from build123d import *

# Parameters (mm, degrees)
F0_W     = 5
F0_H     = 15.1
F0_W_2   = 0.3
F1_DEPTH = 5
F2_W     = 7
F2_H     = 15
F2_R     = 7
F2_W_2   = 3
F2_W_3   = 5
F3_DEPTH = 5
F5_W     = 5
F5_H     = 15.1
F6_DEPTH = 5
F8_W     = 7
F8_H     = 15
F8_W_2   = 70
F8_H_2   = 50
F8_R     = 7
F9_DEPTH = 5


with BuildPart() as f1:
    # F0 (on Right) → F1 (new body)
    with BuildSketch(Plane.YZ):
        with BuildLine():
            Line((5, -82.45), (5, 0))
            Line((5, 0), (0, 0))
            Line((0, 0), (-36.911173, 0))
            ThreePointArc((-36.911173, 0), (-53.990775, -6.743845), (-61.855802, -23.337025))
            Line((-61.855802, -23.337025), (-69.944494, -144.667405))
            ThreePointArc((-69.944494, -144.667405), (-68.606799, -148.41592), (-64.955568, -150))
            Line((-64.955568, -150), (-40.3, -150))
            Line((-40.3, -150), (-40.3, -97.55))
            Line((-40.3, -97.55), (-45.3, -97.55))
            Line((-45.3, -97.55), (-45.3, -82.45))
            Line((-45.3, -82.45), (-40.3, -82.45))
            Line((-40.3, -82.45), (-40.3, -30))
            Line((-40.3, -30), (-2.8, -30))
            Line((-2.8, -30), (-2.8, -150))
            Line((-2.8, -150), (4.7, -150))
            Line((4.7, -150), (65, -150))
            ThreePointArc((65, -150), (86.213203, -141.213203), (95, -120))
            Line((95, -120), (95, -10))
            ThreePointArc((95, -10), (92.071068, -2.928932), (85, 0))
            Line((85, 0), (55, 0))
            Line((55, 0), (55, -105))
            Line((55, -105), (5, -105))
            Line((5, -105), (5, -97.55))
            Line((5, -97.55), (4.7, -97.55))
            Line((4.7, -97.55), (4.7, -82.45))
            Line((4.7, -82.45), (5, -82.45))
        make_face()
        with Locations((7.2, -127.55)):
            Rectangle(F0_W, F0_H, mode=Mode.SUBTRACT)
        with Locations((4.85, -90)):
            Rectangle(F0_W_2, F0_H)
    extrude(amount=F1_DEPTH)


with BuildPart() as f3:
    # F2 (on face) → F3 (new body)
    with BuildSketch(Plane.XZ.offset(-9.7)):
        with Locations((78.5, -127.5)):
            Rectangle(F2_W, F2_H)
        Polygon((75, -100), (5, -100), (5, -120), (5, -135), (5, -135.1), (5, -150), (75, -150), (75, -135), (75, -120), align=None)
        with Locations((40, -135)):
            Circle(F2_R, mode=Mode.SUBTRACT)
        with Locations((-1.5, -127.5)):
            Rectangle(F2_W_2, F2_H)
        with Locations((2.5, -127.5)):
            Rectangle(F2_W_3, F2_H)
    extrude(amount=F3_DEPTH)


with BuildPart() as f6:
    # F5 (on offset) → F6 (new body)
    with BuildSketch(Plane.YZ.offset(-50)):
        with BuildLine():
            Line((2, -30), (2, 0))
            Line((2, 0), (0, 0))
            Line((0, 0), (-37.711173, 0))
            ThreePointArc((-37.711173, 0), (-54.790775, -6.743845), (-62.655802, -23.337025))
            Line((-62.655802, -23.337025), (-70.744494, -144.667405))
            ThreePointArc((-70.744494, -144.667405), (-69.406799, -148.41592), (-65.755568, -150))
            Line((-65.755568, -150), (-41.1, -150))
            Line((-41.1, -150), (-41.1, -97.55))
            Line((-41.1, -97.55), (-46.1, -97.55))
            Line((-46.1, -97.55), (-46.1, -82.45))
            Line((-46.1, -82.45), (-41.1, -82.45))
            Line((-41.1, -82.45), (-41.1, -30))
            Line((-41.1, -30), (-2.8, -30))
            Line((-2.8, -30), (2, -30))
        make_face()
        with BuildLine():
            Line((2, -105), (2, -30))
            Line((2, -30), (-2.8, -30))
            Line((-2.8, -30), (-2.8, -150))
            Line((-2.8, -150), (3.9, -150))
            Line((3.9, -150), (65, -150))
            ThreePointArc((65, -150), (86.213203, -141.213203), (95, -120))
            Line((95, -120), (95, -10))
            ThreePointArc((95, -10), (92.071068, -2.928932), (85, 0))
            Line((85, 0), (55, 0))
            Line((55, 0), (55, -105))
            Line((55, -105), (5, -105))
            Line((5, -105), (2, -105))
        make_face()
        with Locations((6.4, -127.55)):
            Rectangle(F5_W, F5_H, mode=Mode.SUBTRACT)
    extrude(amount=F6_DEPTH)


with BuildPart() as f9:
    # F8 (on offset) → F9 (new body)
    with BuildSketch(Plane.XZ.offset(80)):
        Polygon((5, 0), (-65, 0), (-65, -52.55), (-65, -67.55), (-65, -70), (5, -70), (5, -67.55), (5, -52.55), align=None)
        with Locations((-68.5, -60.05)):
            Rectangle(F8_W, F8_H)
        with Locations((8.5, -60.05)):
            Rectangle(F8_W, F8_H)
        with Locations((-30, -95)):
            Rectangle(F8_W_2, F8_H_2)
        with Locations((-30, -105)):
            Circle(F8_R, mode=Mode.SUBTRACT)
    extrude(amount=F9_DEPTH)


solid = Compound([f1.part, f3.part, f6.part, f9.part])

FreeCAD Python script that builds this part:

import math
import FreeCAD as App
import Part
import Sketcher
Q = App.Units.Quantity


def add_polygon(sketch, points):
    """Adds a closed chain of lines whose ends are joined by coincident constraints."""
    first, n = sketch.GeometryCount, len(points)
    for a, b in zip(points, points[1:] + points[:1]):
        sketch.addGeometry(Part.LineSegment(App.Vector(*a, 0), App.Vector(*b, 0)), False)
    for i in range(n):
        sketch.addConstraint(Sketcher.Constraint("Coincident", first + i, 2, first + (i + 1) % n, 1))

doc = App.newDocument("Part")
body = doc.addObject("PartDesign::Body", "Body")

# Sketch on YZ plane
sketch1 = doc.addObject("Sketcher::SketchObject", "Sketch")
body.addObject(sketch1)
sketch1.AttachmentSupport = (doc.YZ_Plane, [""])
sketch1.MapMode = "FlatFace"
sketch1.addGeometry(Part.LineSegment(App.Vector(5, 0, 0), App.Vector(-36.911173, 0, 0)), False)  # 0
sketch1.addGeometry(Part.ArcOfCircle(Part.Circle(App.Vector(-36.911173, -25, 0), App.Vector(0, 0, 1), 25), math.radians(90), math.radians(176.185926)), False)  # 1
sketch1.addGeometry(Part.LineSegment(App.Vector(-61.855802, -23.337025, 0), App.Vector(-69.944494, -144.667405, 0)), False)  # 2
sketch1.addGeometry(Part.ArcOfCircle(Part.Circle(App.Vector(-64.955567, -144.999999, 0), App.Vector(0, 0, 1), 5.000001), math.radians(176.185937), math.radians(269.999991)), False)  # 3
sketch1.addGeometry(Part.LineSegment(App.Vector(-64.955568, -150, 0), App.Vector(-40.3, -150, 0)), False)  # 4
sketch1.addGeometry(Part.LineSegment(App.Vector(-40.3, -150, 0), App.Vector(-40.3, -97.55, 0)), False)  # 5
sketch1.addGeometry(Part.LineSegment(App.Vector(-40.3, -97.55, 0), App.Vector(-45.3, -97.55, 0)), False)  # 6
sketch1.addGeometry(Part.LineSegment(App.Vector(-45.3, -97.55, 0), App.Vector(-45.3, -82.45, 0)), False)  # 7
sketch1.addGeometry(Part.LineSegment(App.Vector(-45.3, -82.45, 0), App.Vector(-40.3, -82.45, 0)), False)  # 8
sketch1.addGeometry(Part.LineSegment(App.Vector(-40.3, -82.45, 0), App.Vector(-40.3, -30, 0)), False)  # 9
sketch1.addGeometry(Part.LineSegment(App.Vector(-40.3, -30, 0), App.Vector(-2.8, -30, 0)), False)  # 10
sketch1.addGeometry(Part.LineSegment(App.Vector(-2.8, -30, 0), App.Vector(-2.8, -150, 0)), False)  # 11
sketch1.addGeometry(Part.LineSegment(App.Vector(-2.8, -150, 0), App.Vector(65, -150, 0)), False)  # 12
sketch1.addGeometry(Part.ArcOfCircle(Part.Circle(App.Vector(64.999999, -119.999999, 0), App.Vector(0, 0, 1), 30.000001), math.radians(-89.999997), math.radians(-0.000003)), False)  # 13
sketch1.addGeometry(Part.LineSegment(App.Vector(95, -120, 0), App.Vector(95, -10, 0)), False)  # 14
sketch1.addGeometry(Part.ArcOfCircle(Part.Circle(App.Vector(85.000001, -9.999999, 0), App.Vector(0, 0, 1), 9.999999), math.radians(-0.000004), math.radians(90.000004)), False)  # 15
sketch1.addGeometry(Part.LineSegment(App.Vector(85, 0, 0), App.Vector(55, 0, 0)), False)  # 16
sketch1.addGeometry(Part.LineSegment(App.Vector(55, 0, 0), App.Vector(55, -105, 0)), False)  # 17
sketch1.addGeometry(Part.LineSegment(App.Vector(55, -105, 0), App.Vector(5, -105, 0)), False)  # 18
sketch1.addGeometry(Part.LineSegment(App.Vector(5, -105, 0), App.Vector(5, 0, 0)), False)  # 19
add_polygon(sketch1, [(9.7, -135.1), (4.7, -135.1), (4.7, -120), (9.7, -120)])  # lines 20-23
sketch1.addConstraint(Sketcher.Constraint("Tangent", 0, 2, 1, 1))
sketch1.addConstraint(Sketcher.Constraint("Tangent", 1, 2, 2, 1))
sketch1.addConstraint(Sketcher.Constraint("Tangent", 2, 2, 3, 1))
sketch1.addConstraint(Sketcher.Constraint("Tangent", 3, 2, 4, 1))
sketch1.addConstraint(Sketcher.Constraint("Coincident", 4, 2, 5, 1))
sketch1.addConstraint(Sketcher.Constraint("Coincident", 5, 2, 6, 1))
sketch1.addConstraint(Sketcher.Constraint("Coincident", 6, 2, 7, 1))
sketch1.addConstraint(Sketcher.Constraint("Coincident", 7, 2, 8, 1))
sketch1.addConstraint(Sketcher.Constraint("Coincident", 8, 2, 9, 1))
sketch1.addConstraint(Sketcher.Constraint("Coincident", 9, 2, 10, 1))
sketch1.addConstraint(Sketcher.Constraint("Coincident", 10, 2, 11, 1))
sketch1.addConstraint(Sketcher.Constraint("Coincident", 11, 2, 12, 1))
sketch1.addConstraint(Sketcher.Constraint("Tangent", 12, 2, 13, 1))
sketch1.addConstraint(Sketcher.Constraint("Tangent", 13, 2, 14, 1))
sketch1.addConstraint(Sketcher.Constraint("Tangent", 14, 2, 15, 1))
sketch1.addConstraint(Sketcher.Constraint("Tangent", 15, 2, 16, 1))
sketch1.addConstraint(Sketcher.Constraint("Coincident", 16, 2, 17, 1))
sketch1.addConstraint(Sketcher.Constraint("Coincident", 17, 2, 18, 1))
sketch1.addConstraint(Sketcher.Constraint("Coincident", 18, 2, 19, 1))
sketch1.addConstraint(Sketcher.Constraint("Coincident", 19, 2, 0, 1))
sketch1.addConstraint(Sketcher.Constraint("Horizontal", 0))
sketch1.addConstraint(Sketcher.Constraint("Horizontal", 4))
sketch1.addConstraint(Sketcher.Constraint("Vertical", 5))
sketch1.addConstraint(Sketcher.Constraint("Horizontal", 6))
sketch1.addConstraint(Sketcher.Constraint("Vertical", 7))
sketch1.addConstraint(Sketcher.Constraint("Horizontal", 8))
sketch1.addConstraint(Sketcher.Constraint("Vertical", 9))
sketch1.addConstraint(Sketcher.Constraint("Horizontal", 10))
sketch1.addConstraint(Sketcher.Constraint("Vertical", 11))
sketch1.addConstraint(Sketcher.Constraint("Horizontal", 12))
sketch1.addConstraint(Sketcher.Constraint("Vertical", 14))
sketch1.addConstraint(Sketcher.Constraint("Horizontal", 16))
sketch1.addConstraint(Sketcher.Constraint("Vertical", 17))
sketch1.addConstraint(Sketcher.Constraint("Horizontal", 18))
sketch1.addConstraint(Sketcher.Constraint("Vertical", 19))
sketch1.addConstraint(Sketcher.Constraint("Horizontal", 20))
sketch1.addConstraint(Sketcher.Constraint("Vertical", 21))
sketch1.addConstraint(Sketcher.Constraint("Horizontal", 22))
sketch1.addConstraint(Sketcher.Constraint("Vertical", 23))
sketch1.addConstraint(Sketcher.Constraint("PointOnObject", 0, 2, -1))
sketch1.addConstraint(Sketcher.Constraint("PointOnObject", 15, 2, -1))
sketch1.addConstraint(Sketcher.Constraint("Horizontal", 4, 2, 11, 2))
sketch1.addConstraint(Sketcher.Constraint("Horizontal", 13, 2, 21, 2))
sketch1.addConstraint(Sketcher.Constraint("Vertical", 5, 2, 8, 2))
sketch1.addConstraint(Sketcher.Constraint("Equal", 8, 20))
sketch1.addConstraint(Sketcher.Constraint("Equal", 5, 9))
sketch1.addConstraint(Sketcher.Constraint("Equal", 7, 21))
sketch1.addConstraint(Sketcher.Constraint("Radius", 1, Q("25 mm")))
sketch1.addConstraint(Sketcher.Constraint("Radius", 3, Q("5.000001 mm")))
sketch1.addConstraint(Sketcher.Constraint("Radius", 13, Q("30.000001 mm")))
sketch1.addConstraint(Sketcher.Constraint("Radius", 15, Q("9.999999 mm")))
sketch1.addConstraint(Sketcher.Constraint("DistanceX", 6, 2, 6, 1, Q("5 mm")))
sketch1.addConstraint(Sketcher.Constraint("DistanceX", 16, 2, 16, 1, Q("30 mm")))
sketch1.addConstraint(Sketcher.Constraint("DistanceX", 18, 2, 18, 1, Q("50 mm")))
sketch1.addConstraint(Sketcher.Constraint("DistanceY", 11, 2, 11, 1, Q("120 mm")))
sketch1.addConstraint(Sketcher.Constraint("DistanceY", 14, 1, 14, 2, Q("110 mm")))
sketch1.addConstraint(Sketcher.Constraint("DistanceY", 17, 2, 17, 1, Q("105 mm")))
sketch1.addConstraint(Sketcher.Constraint("DistanceX", 10, 1, 10, 2, Q("37.5 mm")))
sketch1.addConstraint(Sketcher.Constraint("DistanceX", 12, 1, 12, 2, Q("67.8 mm")))
sketch1.addConstraint(Sketcher.Constraint("DistanceY", 7, 1, 7, 2, Q("15.1 mm")))
sketch1.addConstraint(Sketcher.Constraint("DistanceX", -1, 1, 13, 3, Q("64.999999 mm")))
sketch1.addConstraint(Sketcher.Constraint("DistanceX", 4, 2, 20, 2, Q("45 mm")))
sketch1.addConstraint(Sketcher.Constraint("DistanceX", 4, 1, 4, 2, Q("24.655568 mm")))
sketch1.addConstraint(Sketcher.Constraint("DistanceX", 1, 2, 13, 3, Q("126.855801 mm")))
pad1 = doc.addObject("PartDesign::Pad", "Pad")
body.addObject(pad1)
pad1.Profile = sketch1
pad1.Length = 5
body2 = doc.addObject("PartDesign::Body", "Body001")

# Sketch on XZ plane
sketch2 = doc.addObject("Sketcher::SketchObject", "Sketch001")
body2.addObject(sketch2)
sketch2.AttachmentSupport = (doc.getObject("XZ_Plane001"), [""])
sketch2.MapMode = "FlatFace"
sketch2.AttachmentOffset = App.Placement(App.Vector(0, 0, -9.7), App.Rotation())
add_polygon(sketch2, [(75, -135), (82, -135), (82, -120), (75, -120), (75, -100), (5, -100), (5, -120), (-3, -120), (-3, -135), (5, -135), (5, -150), (75, -150)])  # lines 0-11
sketch2.addGeometry(Part.Circle(App.Vector(40, -135, 0), App.Vector(0, 0, 1), 7), False)  # 12
sketch2.addConstraint(Sketcher.Constraint("Horizontal", 0))
sketch2.addConstraint(Sketcher.Constraint("Vertical", 1))
sketch2.addConstraint(Sketcher.Constraint("Horizontal", 2))
sketch2.addConstraint(Sketcher.Constraint("Vertical", 3))
sketch2.addConstraint(Sketcher.Constraint("Horizontal", 4))
sketch2.addConstraint(Sketcher.Constraint("Vertical", 5))
sketch2.addConstraint(Sketcher.Constraint("Horizontal", 6))
sketch2.addConstraint(Sketcher.Constraint("Vertical", 7))
sketch2.addConstraint(Sketcher.Constraint("Horizontal", 8))
sketch2.addConstraint(Sketcher.Constraint("Vertical", 9))
sketch2.addConstraint(Sketcher.Constraint("Horizontal", 10))
sketch2.addConstraint(Sketcher.Constraint("Vertical", 11))
sketch2.addConstraint(Sketcher.Constraint("Horizontal", 12, 3, 0, 2))
sketch2.addConstraint(Sketcher.Constraint("Horizontal", 2, 2, 5, 2))
sketch2.addConstraint(Sketcher.Constraint("Horizontal", 0, 2, 7, 2))
sketch2.addConstraint(Sketcher.Constraint("Vertical", 5, 2, 8, 2))
sketch2.addConstraint(Sketcher.Constraint("Vertical", 3, 2, 10, 2))
sketch2.addConstraint(Sketcher.Constraint("Equal", 7, 9))
sketch2.addConstraint(Sketcher.Constraint("Diameter", 12, Q("14 mm")))
sketch2.addConstraint(Sketcher.Constraint("DistanceX", 0, 1, 0, 2, Q("7 mm")))
sketch2.addConstraint(Sketcher.Constraint("DistanceX", 4, 2, 4, 1, Q("70 mm")))
sketch2.addConstraint(Sketcher.Constraint("DistanceX", 6, 2, 6, 1, Q("8 mm")))
sketch2.addConstraint(Sketcher.Constraint("DistanceY", 1, 1, 1, 2, Q("15 mm")))
sketch2.addConstraint(Sketcher.Constraint("DistanceY", 3, 1, 3, 2, Q("20 mm")))
sketch2.addConstraint(Sketcher.Constraint("DistanceX", -1, 1, 12, 3, Q("40 mm")))
sketch2.addConstraint(Sketcher.Constraint("DistanceY", 12, 3, -1, 1, Q("135 mm")))
sketch2.addConstraint(Sketcher.Constraint("DistanceX", -1, 1, 0, 2, Q("82 mm")))
pad2 = doc.addObject("PartDesign::Pad", "Pad001")
body2.addObject(pad2)
pad2.Profile = sketch2
pad2.Length = 5
body3 = doc.addObject("PartDesign::Body", "Body002")

# Sketch on YZ plane
sketch3 = doc.addObject("Sketcher::SketchObject", "Sketch002")
body3.addObject(sketch3)
sketch3.AttachmentSupport = (doc.getObject("YZ_Plane002"), [""])
sketch3.MapMode = "FlatFace"
sketch3.AttachmentOffset = App.Placement(App.Vector(0, 0, -50), App.Rotation())
sketch3.addGeometry(Part.LineSegment(App.Vector(2, 0, 0), App.Vector(-37.711173, 0, 0)), False)  # 0
sketch3.addGeometry(Part.ArcOfCircle(Part.Circle(App.Vector(-37.711173, -25, 0), App.Vector(0, 0, 1), 25), math.radians(90), math.radians(176.185926)), False)  # 1
sketch3.addGeometry(Part.LineSegment(App.Vector(-62.655802, -23.337025, 0), App.Vector(-70.744494, -144.667405, 0)), False)  # 2
sketch3.addGeometry(Part.ArcOfCircle(Part.Circle(App.Vector(-65.755567, -144.999999, 0), App.Vector(0, 0, 1), 5.000001), math.radians(176.185937), math.radians(269.999991)), False)  # 3
sketch3.addGeometry(Part.LineSegment(App.Vector(-65.755568, -150, 0), App.Vector(-41.1, -150, 0)), False)  # 4
sketch3.addGeometry(Part.LineSegment(App.Vector(-41.1, -150, 0), App.Vector(-41.1, -97.55, 0)), False)  # 5
sketch3.addGeometry(Part.LineSegment(App.Vector(-41.1, -97.55, 0), App.Vector(-46.1, -97.55, 0)), False)  # 6
sketch3.addGeometry(Part.LineSegment(App.Vector(-46.1, -97.55, 0), App.Vector(-46.1, -82.45, 0)), False)  # 7
sketch3.addGeometry(Part.LineSegment(App.Vector(-46.1, -82.45, 0), App.Vector(-41.1, -82.45, 0)), False)  # 8
sketch3.addGeometry(Part.LineSegment(App.Vector(-41.1, -82.45, 0), App.Vector(-41.1, -30, 0)), False)  # 9
sketch3.addGeometry(Part.LineSegment(App.Vector(-41.1, -30, 0), App.Vector(-2.8, -30, 0)), False)  # 10
sketch3.addGeometry(Part.LineSegment(App.Vector(-2.8, -30, 0), App.Vector(-2.8, -150, 0)), False)  # 11
sketch3.addGeometry(Part.LineSegment(App.Vector(-2.8, -150, 0), App.Vector(65, -150, 0)), False)  # 12
sketch3.addGeometry(Part.ArcOfCircle(Part.Circle(App.Vector(64.999999, -119.999999, 0), App.Vector(0, 0, 1), 30.000001), math.radians(-89.999997), math.radians(-0.000003)), False)  # 13
sketch3.addGeometry(Part.LineSegment(App.Vector(95, -120, 0), App.Vector(95, -10, 0)), False)  # 14
sketch3.addGeometry(Part.ArcOfCircle(Part.Circle(App.Vector(85.000001, -9.999999, 0), App.Vector(0, 0, 1), 9.999999), math.radians(-0.000004), math.radians(90.000004)), False)  # 15
sketch3.addGeometry(Part.LineSegment(App.Vector(85, 0, 0), App.Vector(55, 0, 0)), False)  # 16
sketch3.addGeometry(Part.LineSegment(App.Vector(55, 0, 0), App.Vector(55, -105, 0)), False)  # 17
sketch3.addGeometry(Part.LineSegment(App.Vector(55, -105, 0), App.Vector(2, -105, 0)), False)  # 18
sketch3.addGeometry(Part.LineSegment(App.Vector(2, -105, 0), App.Vector(2, 0, 0)), False)  # 19
add_polygon(sketch3, [(8.9, -135.1), (3.9, -135.1), (3.9, -120), (8.9, -120)])  # lines 20-23
sketch3.addConstraint(Sketcher.Constraint("Coincident", 0, 2, 1, 1))
sketch3.addConstraint(Sketcher.Constraint("Coincident", 1, 2, 2, 1))
sketch3.addConstraint(Sketcher.Constraint("Coincident", 2, 2, 3, 1))
sketch3.addConstraint(Sketcher.Constraint("Coincident", 3, 2, 4, 1))
sketch3.addConstraint(Sketcher.Constraint("Coincident", 4, 2, 5, 1))
sketch3.addConstraint(Sketcher.Constraint("Coincident", 5, 2, 6, 1))
sketch3.addConstraint(Sketcher.Constraint("Coincident", 6, 2, 7, 1))
sketch3.addConstraint(Sketcher.Constraint("Coincident", 7, 2, 8, 1))
sketch3.addConstraint(Sketcher.Constraint("Coincident", 8, 2, 9, 1))
sketch3.addConstraint(Sketcher.Constraint("Coincident", 9, 2, 10, 1))
sketch3.addConstraint(Sketcher.Constraint("Coincident", 10, 2, 11, 1))
sketch3.addConstraint(Sketcher.Constraint("Coincident", 11, 2, 12, 1))
sketch3.addConstraint(Sketcher.Constraint("Coincident", 12, 2, 13, 1))
sketch3.addConstraint(Sketcher.Constraint("Coincident", 13, 2, 14, 1))
sketch3.addConstraint(Sketcher.Constraint("Coincident", 14, 2, 15, 1))
sketch3.addConstraint(Sketcher.Constraint("Coincident", 15, 2, 16, 1))
sketch3.addConstraint(Sketcher.Constraint("Coincident", 16, 2, 17, 1))
sketch3.addConstraint(Sketcher.Constraint("Coincident", 17, 2, 18, 1))
sketch3.addConstraint(Sketcher.Constraint("Coincident", 18, 2, 19, 1))
sketch3.addConstraint(Sketcher.Constraint("Coincident", 19, 2, 0, 1))
sketch3.addConstraint(Sketcher.Constraint("Horizontal", 0))
sketch3.addConstraint(Sketcher.Constraint("Horizontal", 4))
sketch3.addConstraint(Sketcher.Constraint("Vertical", 5))
sketch3.addConstraint(Sketcher.Constraint("Horizontal", 6))
sketch3.addConstraint(Sketcher.Constraint("Vertical", 7))
sketch3.addConstraint(Sketcher.Constraint("Horizontal", 8))
sketch3.addConstraint(Sketcher.Constraint("Vertical", 9))
sketch3.addConstraint(Sketcher.Constraint("Horizontal", 10))
sketch3.addConstraint(Sketcher.Constraint("Vertical", 11))
sketch3.addConstraint(Sketcher.Constraint("Horizontal", 12))
sketch3.addConstraint(Sketcher.Constraint("Vertical", 14))
sketch3.addConstraint(Sketcher.Constraint("Horizontal", 16))
sketch3.addConstraint(Sketcher.Constraint("Vertical", 17))
sketch3.addConstraint(Sketcher.Constraint("Horizontal", 18))
sketch3.addConstraint(Sketcher.Constraint("Vertical", 19))
sketch3.addConstraint(Sketcher.Constraint("Horizontal", 20))
sketch3.addConstraint(Sketcher.Constraint("Vertical", 21))
sketch3.addConstraint(Sketcher.Constraint("Horizontal", 22))
sketch3.addConstraint(Sketcher.Constraint("Vertical", 23))
sketch3.addConstraint(Sketcher.Constraint("PointOnObject", 0, 2, -1))
sketch3.addConstraint(Sketcher.Constraint("PointOnObject", 15, 2, -1))
sketch3.addConstraint(Sketcher.Constraint("Radius", 1, Q("25 mm")))
sketch3.addConstraint(Sketcher.Constraint("Radius", 3, Q("5.000001 mm")))
sketch3.addConstraint(Sketcher.Constraint("Radius", 13, Q("30.000001 mm")))
sketch3.addConstraint(Sketcher.Constraint("Radius", 15, Q("9.999999 mm")))
sketch3.addConstraint(Sketcher.Constraint("DistanceX", 6, 2, 6, 1, Q("5 mm")))
sketch3.addConstraint(Sketcher.Constraint("DistanceX", 8, 1, 8, 2, Q("5 mm")))
sketch3.addConstraint(Sketcher.Constraint("DistanceX", 16, 2, 16, 1, Q("30 mm")))
sketch3.addConstraint(Sketcher.Constraint("DistanceX", 18, 2, 18, 1, Q("53 mm")))
sketch3.addConstraint(Sketcher.Constraint("DistanceX", 20, 2, 20, 1, Q("5 mm")))
sketch3.addConstraint(Sketcher.Constraint("DistanceY", 11, 2, 11, 1, Q("120 mm")))
sketch3.addConstraint(Sketcher.Constraint("DistanceY", 14, 1, 14, 2, Q("110 mm")))
sketch3.addConstraint(Sketcher.Constraint("DistanceY", 17, 2, 17, 1, Q("105 mm")))
sketch3.addConstraint(Sketcher.Constraint("DistanceX", 10, 1, 10, 2, Q("38.3 mm")))
sketch3.addConstraint(Sketcher.Constraint("DistanceX", 12, 1, 12, 2, Q("67.8 mm")))
sketch3.addConstraint(Sketcher.Constraint("DistanceY", 7, 1, 7, 2, Q("15.1 mm")))
sketch3.addConstraint(Sketcher.Constraint("DistanceY", 21, 1, 21, 2, Q("15.1 mm")))
sketch3.addConstraint(Sketcher.Constraint("DistanceY", 3, 3, -1, 1, Q("144.999999 mm")))
sketch3.addConstraint(Sketcher.Constraint("DistanceX", -1, 1, 13, 3, Q("64.999999 mm")))
sketch3.addConstraint(Sketcher.Constraint("DistanceY", 13, 3, -1, 1, Q("119.999999 mm")))
sketch3.addConstraint(Sketcher.Constraint("DistanceX", -1, 1, 12, 2, Q("65 mm")))
sketch3.addConstraint(Sketcher.Constraint("DistanceY", 13, 2, -1, 1, Q("120 mm")))
sketch3.addConstraint(Sketcher.Constraint("DistanceX", -1, 1, 15, 2, Q("85 mm")))
sketch3.addConstraint(Sketcher.Constraint("DistanceY", 21, 2, -1, 1, Q("120 mm")))
sketch3.addConstraint(Sketcher.Constraint("DistanceX", 4, 2, 20, 2, Q("45 mm")))
sketch3.addConstraint(Sketcher.Constraint("DistanceY", 5, 1, 5, 2, Q("52.45 mm")))
sketch3.addConstraint(Sketcher.Constraint("DistanceX", 1, 2, 13, 3, Q("127.655801 mm")))
sketch3.addConstraint(Sketcher.Constraint("DistanceX", 0, 2, 0, 1, Q("39.711173 mm")))
sketch3.addConstraint(Sketcher.Constraint("DistanceX", 4, 1, 4, 2, Q("24.655568 mm")))
sketch3.addConstraint(Sketcher.Constraint("DistanceX", 1, 3, 13, 3, Q("102.711171 mm")))
sketch3.addConstraint(Sketcher.Constraint("DistanceX", 2, 2, 1, 2, Q("8.088692 mm")))
sketch3.addConstraint(Sketcher.Constraint("DistanceY", 2, 2, 1, 2, Q("121.33038 mm")))
pad3 = doc.addObject("PartDesign::Pad", "Pad002")
body3.addObject(pad3)
pad3.Profile = sketch3
pad3.Length = 5
body4 = doc.addObject("PartDesign::Body", "Body003")

# Sketch on XZ plane
sketch4 = doc.addObject("Sketcher::SketchObject", "Sketch003")
body4.addObject(sketch4)
sketch4.AttachmentSupport = (doc.getObject("XZ_Plane003"), [""])
sketch4.MapMode = "FlatFace"
sketch4.AttachmentOffset = App.Placement(App.Vector(0, 0, 80), App.Rotation())
add_polygon(sketch4, [(5, 0), (-65, 0), (-65, -52.55), (-72, -52.55), (-72, -67.55), (-65, -67.55), (-65, -120), (5, -120), (5, -67.55), (12, -67.55), (12, -52.55), (5, -52.55)])  # lines 0-11
sketch4.addGeometry(Part.Circle(App.Vector(-30, -105, 0), App.Vector(0, 0, 1), 7), False)  # 12
sketch4.addConstraint(Sketcher.Constraint("Horizontal", 0))
sketch4.addConstraint(Sketcher.Constraint("Vertical", 1))
sketch4.addConstraint(Sketcher.Constraint("Horizontal", 2))
sketch4.addConstraint(Sketcher.Constraint("Vertical", 3))
sketch4.addConstraint(Sketcher.Constraint("Horizontal", 4))
sketch4.addConstraint(Sketcher.Constraint("Vertical", 5))
sketch4.addConstraint(Sketcher.Constraint("Horizontal", 6))
sketch4.addConstraint(Sketcher.Constraint("Vertical", 7))
sketch4.addConstraint(Sketcher.Constraint("Horizontal", 8))
sketch4.addConstraint(Sketcher.Constraint("Vertical", 9))
sketch4.addConstraint(Sketcher.Constraint("Horizontal", 10))
sketch4.addConstraint(Sketcher.Constraint("Vertical", 11))
sketch4.addConstraint(Sketcher.Constraint("PointOnObject", 0, 2, -1))
sketch4.addConstraint(Sketcher.Constraint("Horizontal", 4, 2, 7, 2))
sketch4.addConstraint(Sketcher.Constraint("Horizontal", 2, 2, 9, 2))
sketch4.addConstraint(Sketcher.Constraint("Vertical", 1, 2, 4, 2))
sketch4.addConstraint(Sketcher.Constraint("Vertical", 7, 2, 10, 2))
sketch4.addConstraint(Sketcher.Constraint("Equal", 4, 8))
sketch4.addConstraint(Sketcher.Constraint("Diameter", 12, Q("14 mm")))
sketch4.addConstraint(Sketcher.Constraint("DistanceX", 0, 2, 0, 1, Q("70 mm")))
sketch4.addConstraint(Sketcher.Constraint("DistanceX", 2, 2, 2, 1, Q("7 mm")))
sketch4.addConstraint(Sketcher.Constraint("DistanceY", 3, 2, 3, 1, Q("15 mm")))
sketch4.addConstraint(Sketcher.Constraint("DistanceX", 12, 3, -1, 1, Q("30 mm")))
sketch4.addConstraint(Sketcher.Constraint("DistanceY", 12, 3, -1, 1, Q("105 mm")))
sketch4.addConstraint(Sketcher.Constraint("DistanceX", 0, 2, -1, 1, Q("65 mm")))
sketch4.addConstraint(Sketcher.Constraint("DistanceY", 5, 2, -1, 1, Q("120 mm")))
sketch4.addConstraint(Sketcher.Constraint("DistanceY", 1, 2, 1, 1, Q("52.55 mm")))
pad4 = doc.addObject("PartDesign::Pad", "Pad003")
body4.addObject(pad4)
pad4.Profile = sketch4
pad4.Length = 5

doc.recompute()
